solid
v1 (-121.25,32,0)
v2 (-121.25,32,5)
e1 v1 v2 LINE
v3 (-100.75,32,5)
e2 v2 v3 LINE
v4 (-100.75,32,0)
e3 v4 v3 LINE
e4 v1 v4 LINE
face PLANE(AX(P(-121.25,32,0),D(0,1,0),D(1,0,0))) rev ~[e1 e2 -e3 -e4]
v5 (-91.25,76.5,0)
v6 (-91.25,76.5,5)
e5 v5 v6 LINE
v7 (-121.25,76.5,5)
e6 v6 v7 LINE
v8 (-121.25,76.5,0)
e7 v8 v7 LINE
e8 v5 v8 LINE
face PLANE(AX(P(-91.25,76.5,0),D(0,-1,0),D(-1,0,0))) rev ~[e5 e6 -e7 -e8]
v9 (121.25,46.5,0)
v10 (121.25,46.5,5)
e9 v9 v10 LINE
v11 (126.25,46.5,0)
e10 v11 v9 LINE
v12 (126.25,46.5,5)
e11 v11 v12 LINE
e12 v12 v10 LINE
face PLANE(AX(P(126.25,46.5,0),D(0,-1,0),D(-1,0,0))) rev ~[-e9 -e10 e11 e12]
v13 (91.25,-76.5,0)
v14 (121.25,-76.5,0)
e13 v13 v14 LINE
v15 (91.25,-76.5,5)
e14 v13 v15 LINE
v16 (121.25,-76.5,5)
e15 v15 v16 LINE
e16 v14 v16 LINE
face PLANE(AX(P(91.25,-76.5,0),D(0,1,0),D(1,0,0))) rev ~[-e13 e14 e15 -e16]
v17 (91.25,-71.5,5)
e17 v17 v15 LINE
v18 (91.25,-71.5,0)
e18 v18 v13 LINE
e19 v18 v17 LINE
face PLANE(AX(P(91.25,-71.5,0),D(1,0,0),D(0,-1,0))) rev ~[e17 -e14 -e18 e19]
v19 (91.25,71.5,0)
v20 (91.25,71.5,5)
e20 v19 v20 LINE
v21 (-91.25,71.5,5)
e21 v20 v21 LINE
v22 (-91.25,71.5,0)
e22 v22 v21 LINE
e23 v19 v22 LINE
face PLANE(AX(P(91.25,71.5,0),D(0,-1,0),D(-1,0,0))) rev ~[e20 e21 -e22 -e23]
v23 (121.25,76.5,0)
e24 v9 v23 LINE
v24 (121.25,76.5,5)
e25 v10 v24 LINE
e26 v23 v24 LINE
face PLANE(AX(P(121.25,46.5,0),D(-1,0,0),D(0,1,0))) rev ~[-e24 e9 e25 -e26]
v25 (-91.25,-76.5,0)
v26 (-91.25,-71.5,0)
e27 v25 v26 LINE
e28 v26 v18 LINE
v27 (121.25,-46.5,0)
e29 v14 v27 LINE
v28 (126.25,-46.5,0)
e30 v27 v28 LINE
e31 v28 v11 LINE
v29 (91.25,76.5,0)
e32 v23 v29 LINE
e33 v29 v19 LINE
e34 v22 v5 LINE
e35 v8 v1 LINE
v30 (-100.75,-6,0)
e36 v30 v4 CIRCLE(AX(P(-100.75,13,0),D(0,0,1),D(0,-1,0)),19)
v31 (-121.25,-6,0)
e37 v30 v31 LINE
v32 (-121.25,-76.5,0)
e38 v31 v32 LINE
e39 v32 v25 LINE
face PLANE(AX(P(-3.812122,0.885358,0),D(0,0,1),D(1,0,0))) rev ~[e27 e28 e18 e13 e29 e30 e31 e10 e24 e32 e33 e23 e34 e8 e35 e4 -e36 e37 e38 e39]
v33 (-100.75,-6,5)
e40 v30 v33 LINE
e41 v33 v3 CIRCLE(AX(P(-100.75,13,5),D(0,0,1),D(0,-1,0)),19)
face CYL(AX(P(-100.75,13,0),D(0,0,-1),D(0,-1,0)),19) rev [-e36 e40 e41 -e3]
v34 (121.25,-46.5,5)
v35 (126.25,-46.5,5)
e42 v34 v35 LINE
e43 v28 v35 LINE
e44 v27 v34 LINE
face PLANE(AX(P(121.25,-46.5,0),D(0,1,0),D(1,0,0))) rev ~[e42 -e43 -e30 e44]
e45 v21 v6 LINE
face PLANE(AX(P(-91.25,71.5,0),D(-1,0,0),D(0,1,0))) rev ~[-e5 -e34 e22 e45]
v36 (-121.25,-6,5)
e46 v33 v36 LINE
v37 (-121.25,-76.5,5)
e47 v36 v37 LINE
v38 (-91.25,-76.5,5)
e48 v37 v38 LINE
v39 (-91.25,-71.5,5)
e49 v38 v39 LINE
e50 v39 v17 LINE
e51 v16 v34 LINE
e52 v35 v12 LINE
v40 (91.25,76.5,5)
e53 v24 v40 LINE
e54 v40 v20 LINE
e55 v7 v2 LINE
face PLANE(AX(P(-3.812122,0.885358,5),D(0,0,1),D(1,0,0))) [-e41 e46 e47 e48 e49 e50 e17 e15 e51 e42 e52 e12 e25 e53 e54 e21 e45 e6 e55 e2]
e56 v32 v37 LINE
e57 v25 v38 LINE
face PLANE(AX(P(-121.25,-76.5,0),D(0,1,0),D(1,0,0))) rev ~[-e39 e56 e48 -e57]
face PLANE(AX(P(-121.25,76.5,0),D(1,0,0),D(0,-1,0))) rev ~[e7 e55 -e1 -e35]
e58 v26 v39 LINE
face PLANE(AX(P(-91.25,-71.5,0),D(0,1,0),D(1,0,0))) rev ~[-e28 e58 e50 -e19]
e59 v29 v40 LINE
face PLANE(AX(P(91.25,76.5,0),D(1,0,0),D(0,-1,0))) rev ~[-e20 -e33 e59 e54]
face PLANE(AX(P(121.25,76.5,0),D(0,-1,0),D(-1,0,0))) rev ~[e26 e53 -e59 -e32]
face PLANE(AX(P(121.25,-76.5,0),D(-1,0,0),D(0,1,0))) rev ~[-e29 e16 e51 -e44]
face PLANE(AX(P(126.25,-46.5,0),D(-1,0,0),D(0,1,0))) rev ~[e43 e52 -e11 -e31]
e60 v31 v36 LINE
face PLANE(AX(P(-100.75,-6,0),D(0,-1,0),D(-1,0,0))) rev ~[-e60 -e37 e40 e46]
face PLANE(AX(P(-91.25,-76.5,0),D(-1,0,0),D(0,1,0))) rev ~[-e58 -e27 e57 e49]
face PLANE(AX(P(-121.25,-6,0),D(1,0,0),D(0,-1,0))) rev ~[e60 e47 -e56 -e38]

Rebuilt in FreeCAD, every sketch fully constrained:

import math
import FreeCAD as App
import Part
import Sketcher

V = App.Vector

doc = App.newDocument("Part")
body = doc.addObject("PartDesign::Body", "Body")

# Sketch on XY plane
sketch1 = doc.addObject("Sketcher::SketchObject", "Sketch")
body.addObject(sketch1)
sketch1.AttachmentSupport = (doc.XY_Plane, [""])
sketch1.MapMode = "FlatFace"
sketch1.addGeometry(Part.LineSegment(V(121, 46, 0), V(121, 76, 0)), False)
sketch1.addGeometry(Part.LineSegment(V(121, 76, 0), V(91, 76, 0)), False)
sketch1.addGeometry(Part.LineSegment(V(91, 76, 0), V(91, 72, 0)), False)
sketch1.addGeometry(Part.LineSegment(V(91, 72, 0), V(-91, 72, 0)), False)
sketch1.addGeometry(Part.LineSegment(V(-91, 72, 0), V(-91, 76, 0)), False)
sketch1.addGeometry(Part.LineSegment(V(-91, 76, 0), V(-121, 76, 0)), False)
sketch1.addGeometry(Part.LineSegment(V(-121, 76, 0), V(-121, 32, 0)), False)
sketch1.addGeometry(Part.LineSegment(V(-121, 32, 0), V(-101, 32, 0)), False)
sketch1.addGeometry(Part.ArcOfCircle(Part.Circle(V(-101, 13, 0), V(0, 0, 1), 19), math.radians(-90), math.radians(90)), False)
sketch1.addGeometry(Part.LineSegment(V(-101, -6, 0), V(-121, -6, 0)), False)
sketch1.addGeometry(Part.LineSegment(V(-121, -6, 0), V(-121, -76, 0)), False)
sketch1.addGeometry(Part.LineSegment(V(-121, -76, 0), V(-91, -76, 0)), False)
sketch1.addGeometry(Part.LineSegment(V(-91, -76, 0), V(-91, -72, 0)), False)
sketch1.addGeometry(Part.LineSegment(V(-91, -72, 0), V(91, -72, 0)), False)
sketch1.addGeometry(Part.LineSegment(V(91, -72, 0), V(91, -76, 0)), False)
sketch1.addGeometry(Part.LineSegment(V(91, -76, 0), V(121, -76, 0)), False)
sketch1.addGeometry(Part.LineSegment(V(121, -76, 0), V(121, -46, 0)), False)
sketch1.addGeometry(Part.LineSegment(V(121, -46, 0), V(126, -46, 0)), False)
sketch1.addGeometry(Part.LineSegment(V(126, -46, 0), V(126, 46, 0)), False)
sketch1.addGeometry(Part.LineSegment(V(126, 46, 0), V(121, 46, 0)), False)
sketch1.addConstraint(Sketcher.Constraint("Coincident", 0, 2, 1, 1))
sketch1.addConstraint(Sketcher.Constraint("Coincident", 1, 2, 2, 1))
sketch1.addConstraint(Sketcher.Constraint("Coincident", 2, 2, 3, 1))
sketch1.addConstraint(Sketcher.Constraint("Coincident", 3, 2, 4, 1))
sketch1.addConstraint(Sketcher.Constraint("Coincident", 4, 2, 5, 1))
sketch1.addConstraint(Sketcher.Constraint("Coincident", 5, 2, 6, 1))
sketch1.addConstraint(Sketcher.Constraint("Coincident", 6, 2, 7, 1))
sketch1.addConstraint(Sketcher.Constraint("Tangent", 7, 2, 8, 2))
sketch1.addConstraint(Sketcher.Constraint("Tangent", 8, 1, 9, 1))
sketch1.addConstraint(Sketcher.Constraint("Coincident", 9, 2, 10, 1))
sketch1.addConstraint(Sketcher.Constraint("Coincident", 10, 2, 11, 1))
sketch1.addConstraint(Sketcher.Constraint("Coincident", 11, 2, 12, 1))
sketch1.addConstraint(Sketcher.Constraint("Coincident", 12, 2, 13, 1))
sketch1.addConstraint(Sketcher.Constraint("Coincident", 13, 2, 14, 1))
sketch1.addConstraint(Sketcher.Constraint("Coincident", 14, 2, 15, 1))
sketch1.addConstraint(Sketcher.Constraint("Coincident", 15, 2, 16, 1))
sketch1.addConstraint(Sketcher.Constraint("Coincident", 16, 2, 17, 1))
sketch1.addConstraint(Sketcher.Constraint("Coincident", 17, 2, 18, 1))
sketch1.addConstraint(Sketcher.Constraint("Coincident", 18, 2, 19, 1))
sketch1.addConstraint(Sketcher.Constraint("Coincident", 19, 2, 0, 1))
sketch1.addConstraint(Sketcher.Constraint("Vertical", 0))
sketch1.addConstraint(Sketcher.Constraint("Horizontal", 1))
sketch1.addConstraint(Sketcher.Constraint("Vertical", 2))
sketch1.addConstraint(Sketcher.Constraint("Horizontal", 3))
sketch1.addConstraint(Sketcher.Constraint("Vertical", 4))
sketch1.addConstraint(Sketcher.Constraint("Horizontal", 5))
sketch1.addConstraint(Sketcher.Constraint("Vertical", 6))
sketch1.addConstraint(Sketcher.Constraint("Horizontal", 7))
sketch1.addConstraint(Sketcher.Constraint("Horizontal", 9))
sketch1.addConstraint(Sketcher.Constraint("Vertical", 10))
sketch1.addConstraint(Sketcher.Constraint("Horizontal", 11))
sketch1.addConstraint(Sketcher.Constraint("Vertical", 12))
sketch1.addConstraint(Sketcher.Constraint("Horizontal", 13))
sketch1.addConstraint(Sketcher.Constraint("Vertical", 14))
sketch1.addConstraint(Sketcher.Constraint("Horizontal", 15))
sketch1.addConstraint(Sketcher.Constraint("Vertical", 16))
sketch1.addConstraint(Sketcher.Constraint("Horizontal", 17))
sketch1.addConstraint(Sketcher.Constraint("Vertical", 18))
sketch1.addConstraint(Sketcher.Constraint("Horizontal", 19))
sketch1.addConstraint(Sketcher.Constraint("Symmetric", 0, 2, 10, 2, -1, 1))
sketch1.addConstraint(Sketcher.Constraint("Symmetric", 2, 2, 12, 2, -1, 1))
sketch1.addConstraint(Sketcher.Constraint("Symmetric", 4, 2, 14, 2, -1, 1))
sketch1.addConstraint(Sketcher.Constraint("Symmetric", 1, 2, 4, 2, -2))
sketch1.addConstraint(Sketcher.Constraint("Symmetric", 16, 2, 19, 2, -1))
sketch1.addConstraint(Sketcher.Constraint("Vertical", 6, 2, 9, 2))
sketch1.addConstraint(Sketcher.Constraint("Equal", 15, 0))
sketch1.addConstraint(Sketcher.Constraint("Equal", 19, 2))
sketch1.addConstraint(Sketcher.Constraint("Radius", 8, 19.0))
sketch1.addConstraint(Sketcher.Constraint("DistanceX", 1, 2, 1, 1, 30.0))
sketch1.addConstraint(Sketcher.Constraint("DistanceX", 17, 1, 17, 2, 5.0))
sketch1.addConstraint(Sketcher.Constraint("DistanceY", 18, 1, 18, 2, 93.0))
sketch1.addConstraint(Sketcher.Constraint("DistanceX", 3, 2, 3, 1, 182.5))
sketch1.addConstraint(Sketcher.Constraint("DistanceX", 7, 1, 7, 2, 20.5))
sketch1.addConstraint(Sketcher.Constraint("DistanceY", 6, 2, 6, 1, 44.5))
pad1 = doc.addObject("PartDesign::Pad", "Pad")
body.addObject(pad1)
pad1.Profile = sketch1
pad1.Length = 5

doc.recompute()
